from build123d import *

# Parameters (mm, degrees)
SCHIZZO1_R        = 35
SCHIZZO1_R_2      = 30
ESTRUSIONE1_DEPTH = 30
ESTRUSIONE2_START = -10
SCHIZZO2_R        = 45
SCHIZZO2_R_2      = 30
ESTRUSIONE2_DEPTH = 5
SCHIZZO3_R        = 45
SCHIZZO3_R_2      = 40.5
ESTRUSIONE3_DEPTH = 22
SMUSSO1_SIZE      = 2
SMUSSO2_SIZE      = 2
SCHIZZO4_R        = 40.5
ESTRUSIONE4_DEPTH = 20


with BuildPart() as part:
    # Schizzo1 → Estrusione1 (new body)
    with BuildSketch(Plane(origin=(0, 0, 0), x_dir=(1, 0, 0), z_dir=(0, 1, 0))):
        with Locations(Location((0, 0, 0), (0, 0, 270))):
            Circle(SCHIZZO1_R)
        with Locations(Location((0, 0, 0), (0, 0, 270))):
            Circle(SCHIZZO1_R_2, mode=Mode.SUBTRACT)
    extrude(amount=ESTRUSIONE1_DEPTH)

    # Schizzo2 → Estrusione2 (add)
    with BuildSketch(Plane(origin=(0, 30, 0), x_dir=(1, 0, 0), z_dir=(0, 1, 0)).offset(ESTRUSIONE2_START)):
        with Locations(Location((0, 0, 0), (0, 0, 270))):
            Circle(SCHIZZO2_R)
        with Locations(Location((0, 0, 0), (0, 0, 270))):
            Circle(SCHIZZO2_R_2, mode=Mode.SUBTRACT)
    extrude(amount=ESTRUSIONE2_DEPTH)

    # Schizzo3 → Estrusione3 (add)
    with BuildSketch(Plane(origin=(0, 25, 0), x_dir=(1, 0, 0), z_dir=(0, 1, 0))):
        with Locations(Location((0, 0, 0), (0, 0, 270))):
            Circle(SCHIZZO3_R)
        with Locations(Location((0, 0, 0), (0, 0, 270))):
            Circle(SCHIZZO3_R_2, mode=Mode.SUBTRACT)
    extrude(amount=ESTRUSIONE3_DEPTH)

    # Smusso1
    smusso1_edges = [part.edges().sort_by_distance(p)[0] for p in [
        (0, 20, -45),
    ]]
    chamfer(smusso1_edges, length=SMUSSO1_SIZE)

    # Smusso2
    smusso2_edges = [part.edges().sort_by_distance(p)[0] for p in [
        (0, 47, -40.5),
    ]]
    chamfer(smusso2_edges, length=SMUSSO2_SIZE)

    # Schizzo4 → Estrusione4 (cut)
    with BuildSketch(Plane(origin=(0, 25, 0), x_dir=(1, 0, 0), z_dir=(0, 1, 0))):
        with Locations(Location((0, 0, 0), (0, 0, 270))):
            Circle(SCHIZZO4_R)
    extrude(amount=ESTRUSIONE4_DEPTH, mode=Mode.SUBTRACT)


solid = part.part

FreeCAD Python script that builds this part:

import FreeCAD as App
import Part
import Sketcher
from FreeCAD import Vector


def edges_at(feature, points):
    """Names of the edges that pass closest to the given points."""
    edges = feature.Shape.Edges
    near = lambda p: min(range(len(edges)), key=lambda i: edges[i].distToShape(Part.Vertex(*p))[0])
    return sorted({f"Edge{near(p) + 1}" for p in points})

doc = App.newDocument("Part")
body = doc.addObject("PartDesign::Body", "Body")

sketch1 = doc.addObject("Sketcher::SketchObject", "Sketch")
body.addObject(sketch1)
sketch1.AttachmentSupport = (doc.XZ_Plane, [""])
sketch1.MapMode = "FlatFace"
sketch1.addGeometry(Part.Circle(Vector(0, 0, 0), Vector(0, 0, 1), 35), False)
sketch1.addGeometry(Part.Circle(Vector(0, 0, 0), Vector(0, 0, 1), 30), False)
sketch1.addConstraint(Sketcher.Constraint("Coincident", 0, 3, -1, 1))
sketch1.addConstraint(Sketcher.Constraint("Coincident", 1, 3, -1, 1))
sketch1.addConstraint(Sketcher.Constraint("Diameter", 0, 70.0))
sketch1.addConstraint(Sketcher.Constraint("Diameter", 1, 60.0))
pad1 = doc.addObject("PartDesign::Pad", "Pad")
body.addObject(pad1)
pad1.Profile = sketch1
pad1.Length = 30
pad1.Reversed = True

sketch2 = doc.addObject("Sketcher::SketchObject", "Sketch001")
body.addObject(sketch2)
sketch2.AttachmentSupport = (doc.XZ_Plane, [""])
sketch2.MapMode = "FlatFace"
sketch2.AttachmentOffset = App.Placement(Vector(0, 0, -20), App.Rotation())
sketch2.addGeometry(Part.Circle(Vector(0, 0, 0), Vector(0, 0, 1), 45), False)
sketch2.addGeometry(Part.Circle(Vector(0, 0, 0), Vector(0, 0, 1), 30), False)
sketch2.addConstraint(Sketcher.Constraint("Coincident", 0, 3, -1, 1))
sketch2.addConstraint(Sketcher.Constraint("Coincident", 1, 3, -1, 1))
sketch2.addConstraint(Sketcher.Constraint("Diameter", 0, 90.0))
sketch2.addConstraint(Sketcher.Constraint("Diameter", 1, 60.0))
pad2 = doc.addObject("PartDesign::Pad", "Pad001")
body.addObject(pad2)
pad2.Profile = sketch2
pad2.Length = 5
pad2.Reversed = True

sketch3 = doc.addObject("Sketcher::SketchObject", "Sketch002")
body.addObject(sketch3)
sketch3.AttachmentSupport = (doc.XZ_Plane, [""])
sketch3.MapMode = "FlatFace"
sketch3.AttachmentOffset = App.Placement(Vector(0, 0, -25), App.Rotation())
sketch3.addGeometry(Part.Circle(Vector(0, 0, 0), Vector(0, 0, 1), 45), False)
sketch3.addGeometry(Part.Circle(Vector(0, 0, 0), Vector(0, 0, 1), 40), False)
sketch3.addConstraint(Sketcher.Constraint("Coincident", 0, 3, -1, 1))
sketch3.addConstraint(Sketcher.Constraint("Coincident", 1, 3, -1, 1))
sketch3.addConstraint(Sketcher.Constraint("Diameter", 0, 90.0))
sketch3.addConstraint(Sketcher.Constraint("Diameter", 1, 81.0))
pad3 = doc.addObject("PartDesign::Pad", "Pad002")
body.addObject(pad3)
pad3.Profile = sketch3
pad3.Length = 22
pad3.Reversed = True
doc.recompute()

chamfer = doc.addObject("PartDesign::Chamfer", "Chamfer")
body.addObject(chamfer)
chamfer.Base = (pad3, edges_at(pad3, [(0, 20, -45)]))
chamfer.Size = 2
doc.recompute()

chamfer2 = doc.addObject("PartDesign::Chamfer", "Chamfer001")
body.addObject(chamfer2)
chamfer2.Base = (chamfer, edges_at(chamfer, [(0, 47, -40.5)]))
chamfer2.Size = 2

sketch4 = doc.addObject("Sketcher::SketchObject", "Sketch003")
body.addObject(sketch4)
sketch4.AttachmentSupport = (doc.XZ_Plane, [""])
sketch4.MapMode = "FlatFace"
sketch4.AttachmentOffset = App.Placement(Vector(0, 0, -25), App.Rotation())
sketch4.addGeometry(Part.Circle(Vector(0, 0, 0), Vector(0, 0, 1), 40), False)
sketch4.addConstraint(Sketcher.Constraint("Coincident", 0, 3, -1, 1))
sketch4.addConstraint(Sketcher.Constraint("Diameter", 0, 81.0))
pocket1 = doc.addObject("PartDesign::Pocket", "Pocket")
body.addObject(pocket1)
pocket1.Profile = sketch4
pocket1.Length = 20

doc.recompute()
